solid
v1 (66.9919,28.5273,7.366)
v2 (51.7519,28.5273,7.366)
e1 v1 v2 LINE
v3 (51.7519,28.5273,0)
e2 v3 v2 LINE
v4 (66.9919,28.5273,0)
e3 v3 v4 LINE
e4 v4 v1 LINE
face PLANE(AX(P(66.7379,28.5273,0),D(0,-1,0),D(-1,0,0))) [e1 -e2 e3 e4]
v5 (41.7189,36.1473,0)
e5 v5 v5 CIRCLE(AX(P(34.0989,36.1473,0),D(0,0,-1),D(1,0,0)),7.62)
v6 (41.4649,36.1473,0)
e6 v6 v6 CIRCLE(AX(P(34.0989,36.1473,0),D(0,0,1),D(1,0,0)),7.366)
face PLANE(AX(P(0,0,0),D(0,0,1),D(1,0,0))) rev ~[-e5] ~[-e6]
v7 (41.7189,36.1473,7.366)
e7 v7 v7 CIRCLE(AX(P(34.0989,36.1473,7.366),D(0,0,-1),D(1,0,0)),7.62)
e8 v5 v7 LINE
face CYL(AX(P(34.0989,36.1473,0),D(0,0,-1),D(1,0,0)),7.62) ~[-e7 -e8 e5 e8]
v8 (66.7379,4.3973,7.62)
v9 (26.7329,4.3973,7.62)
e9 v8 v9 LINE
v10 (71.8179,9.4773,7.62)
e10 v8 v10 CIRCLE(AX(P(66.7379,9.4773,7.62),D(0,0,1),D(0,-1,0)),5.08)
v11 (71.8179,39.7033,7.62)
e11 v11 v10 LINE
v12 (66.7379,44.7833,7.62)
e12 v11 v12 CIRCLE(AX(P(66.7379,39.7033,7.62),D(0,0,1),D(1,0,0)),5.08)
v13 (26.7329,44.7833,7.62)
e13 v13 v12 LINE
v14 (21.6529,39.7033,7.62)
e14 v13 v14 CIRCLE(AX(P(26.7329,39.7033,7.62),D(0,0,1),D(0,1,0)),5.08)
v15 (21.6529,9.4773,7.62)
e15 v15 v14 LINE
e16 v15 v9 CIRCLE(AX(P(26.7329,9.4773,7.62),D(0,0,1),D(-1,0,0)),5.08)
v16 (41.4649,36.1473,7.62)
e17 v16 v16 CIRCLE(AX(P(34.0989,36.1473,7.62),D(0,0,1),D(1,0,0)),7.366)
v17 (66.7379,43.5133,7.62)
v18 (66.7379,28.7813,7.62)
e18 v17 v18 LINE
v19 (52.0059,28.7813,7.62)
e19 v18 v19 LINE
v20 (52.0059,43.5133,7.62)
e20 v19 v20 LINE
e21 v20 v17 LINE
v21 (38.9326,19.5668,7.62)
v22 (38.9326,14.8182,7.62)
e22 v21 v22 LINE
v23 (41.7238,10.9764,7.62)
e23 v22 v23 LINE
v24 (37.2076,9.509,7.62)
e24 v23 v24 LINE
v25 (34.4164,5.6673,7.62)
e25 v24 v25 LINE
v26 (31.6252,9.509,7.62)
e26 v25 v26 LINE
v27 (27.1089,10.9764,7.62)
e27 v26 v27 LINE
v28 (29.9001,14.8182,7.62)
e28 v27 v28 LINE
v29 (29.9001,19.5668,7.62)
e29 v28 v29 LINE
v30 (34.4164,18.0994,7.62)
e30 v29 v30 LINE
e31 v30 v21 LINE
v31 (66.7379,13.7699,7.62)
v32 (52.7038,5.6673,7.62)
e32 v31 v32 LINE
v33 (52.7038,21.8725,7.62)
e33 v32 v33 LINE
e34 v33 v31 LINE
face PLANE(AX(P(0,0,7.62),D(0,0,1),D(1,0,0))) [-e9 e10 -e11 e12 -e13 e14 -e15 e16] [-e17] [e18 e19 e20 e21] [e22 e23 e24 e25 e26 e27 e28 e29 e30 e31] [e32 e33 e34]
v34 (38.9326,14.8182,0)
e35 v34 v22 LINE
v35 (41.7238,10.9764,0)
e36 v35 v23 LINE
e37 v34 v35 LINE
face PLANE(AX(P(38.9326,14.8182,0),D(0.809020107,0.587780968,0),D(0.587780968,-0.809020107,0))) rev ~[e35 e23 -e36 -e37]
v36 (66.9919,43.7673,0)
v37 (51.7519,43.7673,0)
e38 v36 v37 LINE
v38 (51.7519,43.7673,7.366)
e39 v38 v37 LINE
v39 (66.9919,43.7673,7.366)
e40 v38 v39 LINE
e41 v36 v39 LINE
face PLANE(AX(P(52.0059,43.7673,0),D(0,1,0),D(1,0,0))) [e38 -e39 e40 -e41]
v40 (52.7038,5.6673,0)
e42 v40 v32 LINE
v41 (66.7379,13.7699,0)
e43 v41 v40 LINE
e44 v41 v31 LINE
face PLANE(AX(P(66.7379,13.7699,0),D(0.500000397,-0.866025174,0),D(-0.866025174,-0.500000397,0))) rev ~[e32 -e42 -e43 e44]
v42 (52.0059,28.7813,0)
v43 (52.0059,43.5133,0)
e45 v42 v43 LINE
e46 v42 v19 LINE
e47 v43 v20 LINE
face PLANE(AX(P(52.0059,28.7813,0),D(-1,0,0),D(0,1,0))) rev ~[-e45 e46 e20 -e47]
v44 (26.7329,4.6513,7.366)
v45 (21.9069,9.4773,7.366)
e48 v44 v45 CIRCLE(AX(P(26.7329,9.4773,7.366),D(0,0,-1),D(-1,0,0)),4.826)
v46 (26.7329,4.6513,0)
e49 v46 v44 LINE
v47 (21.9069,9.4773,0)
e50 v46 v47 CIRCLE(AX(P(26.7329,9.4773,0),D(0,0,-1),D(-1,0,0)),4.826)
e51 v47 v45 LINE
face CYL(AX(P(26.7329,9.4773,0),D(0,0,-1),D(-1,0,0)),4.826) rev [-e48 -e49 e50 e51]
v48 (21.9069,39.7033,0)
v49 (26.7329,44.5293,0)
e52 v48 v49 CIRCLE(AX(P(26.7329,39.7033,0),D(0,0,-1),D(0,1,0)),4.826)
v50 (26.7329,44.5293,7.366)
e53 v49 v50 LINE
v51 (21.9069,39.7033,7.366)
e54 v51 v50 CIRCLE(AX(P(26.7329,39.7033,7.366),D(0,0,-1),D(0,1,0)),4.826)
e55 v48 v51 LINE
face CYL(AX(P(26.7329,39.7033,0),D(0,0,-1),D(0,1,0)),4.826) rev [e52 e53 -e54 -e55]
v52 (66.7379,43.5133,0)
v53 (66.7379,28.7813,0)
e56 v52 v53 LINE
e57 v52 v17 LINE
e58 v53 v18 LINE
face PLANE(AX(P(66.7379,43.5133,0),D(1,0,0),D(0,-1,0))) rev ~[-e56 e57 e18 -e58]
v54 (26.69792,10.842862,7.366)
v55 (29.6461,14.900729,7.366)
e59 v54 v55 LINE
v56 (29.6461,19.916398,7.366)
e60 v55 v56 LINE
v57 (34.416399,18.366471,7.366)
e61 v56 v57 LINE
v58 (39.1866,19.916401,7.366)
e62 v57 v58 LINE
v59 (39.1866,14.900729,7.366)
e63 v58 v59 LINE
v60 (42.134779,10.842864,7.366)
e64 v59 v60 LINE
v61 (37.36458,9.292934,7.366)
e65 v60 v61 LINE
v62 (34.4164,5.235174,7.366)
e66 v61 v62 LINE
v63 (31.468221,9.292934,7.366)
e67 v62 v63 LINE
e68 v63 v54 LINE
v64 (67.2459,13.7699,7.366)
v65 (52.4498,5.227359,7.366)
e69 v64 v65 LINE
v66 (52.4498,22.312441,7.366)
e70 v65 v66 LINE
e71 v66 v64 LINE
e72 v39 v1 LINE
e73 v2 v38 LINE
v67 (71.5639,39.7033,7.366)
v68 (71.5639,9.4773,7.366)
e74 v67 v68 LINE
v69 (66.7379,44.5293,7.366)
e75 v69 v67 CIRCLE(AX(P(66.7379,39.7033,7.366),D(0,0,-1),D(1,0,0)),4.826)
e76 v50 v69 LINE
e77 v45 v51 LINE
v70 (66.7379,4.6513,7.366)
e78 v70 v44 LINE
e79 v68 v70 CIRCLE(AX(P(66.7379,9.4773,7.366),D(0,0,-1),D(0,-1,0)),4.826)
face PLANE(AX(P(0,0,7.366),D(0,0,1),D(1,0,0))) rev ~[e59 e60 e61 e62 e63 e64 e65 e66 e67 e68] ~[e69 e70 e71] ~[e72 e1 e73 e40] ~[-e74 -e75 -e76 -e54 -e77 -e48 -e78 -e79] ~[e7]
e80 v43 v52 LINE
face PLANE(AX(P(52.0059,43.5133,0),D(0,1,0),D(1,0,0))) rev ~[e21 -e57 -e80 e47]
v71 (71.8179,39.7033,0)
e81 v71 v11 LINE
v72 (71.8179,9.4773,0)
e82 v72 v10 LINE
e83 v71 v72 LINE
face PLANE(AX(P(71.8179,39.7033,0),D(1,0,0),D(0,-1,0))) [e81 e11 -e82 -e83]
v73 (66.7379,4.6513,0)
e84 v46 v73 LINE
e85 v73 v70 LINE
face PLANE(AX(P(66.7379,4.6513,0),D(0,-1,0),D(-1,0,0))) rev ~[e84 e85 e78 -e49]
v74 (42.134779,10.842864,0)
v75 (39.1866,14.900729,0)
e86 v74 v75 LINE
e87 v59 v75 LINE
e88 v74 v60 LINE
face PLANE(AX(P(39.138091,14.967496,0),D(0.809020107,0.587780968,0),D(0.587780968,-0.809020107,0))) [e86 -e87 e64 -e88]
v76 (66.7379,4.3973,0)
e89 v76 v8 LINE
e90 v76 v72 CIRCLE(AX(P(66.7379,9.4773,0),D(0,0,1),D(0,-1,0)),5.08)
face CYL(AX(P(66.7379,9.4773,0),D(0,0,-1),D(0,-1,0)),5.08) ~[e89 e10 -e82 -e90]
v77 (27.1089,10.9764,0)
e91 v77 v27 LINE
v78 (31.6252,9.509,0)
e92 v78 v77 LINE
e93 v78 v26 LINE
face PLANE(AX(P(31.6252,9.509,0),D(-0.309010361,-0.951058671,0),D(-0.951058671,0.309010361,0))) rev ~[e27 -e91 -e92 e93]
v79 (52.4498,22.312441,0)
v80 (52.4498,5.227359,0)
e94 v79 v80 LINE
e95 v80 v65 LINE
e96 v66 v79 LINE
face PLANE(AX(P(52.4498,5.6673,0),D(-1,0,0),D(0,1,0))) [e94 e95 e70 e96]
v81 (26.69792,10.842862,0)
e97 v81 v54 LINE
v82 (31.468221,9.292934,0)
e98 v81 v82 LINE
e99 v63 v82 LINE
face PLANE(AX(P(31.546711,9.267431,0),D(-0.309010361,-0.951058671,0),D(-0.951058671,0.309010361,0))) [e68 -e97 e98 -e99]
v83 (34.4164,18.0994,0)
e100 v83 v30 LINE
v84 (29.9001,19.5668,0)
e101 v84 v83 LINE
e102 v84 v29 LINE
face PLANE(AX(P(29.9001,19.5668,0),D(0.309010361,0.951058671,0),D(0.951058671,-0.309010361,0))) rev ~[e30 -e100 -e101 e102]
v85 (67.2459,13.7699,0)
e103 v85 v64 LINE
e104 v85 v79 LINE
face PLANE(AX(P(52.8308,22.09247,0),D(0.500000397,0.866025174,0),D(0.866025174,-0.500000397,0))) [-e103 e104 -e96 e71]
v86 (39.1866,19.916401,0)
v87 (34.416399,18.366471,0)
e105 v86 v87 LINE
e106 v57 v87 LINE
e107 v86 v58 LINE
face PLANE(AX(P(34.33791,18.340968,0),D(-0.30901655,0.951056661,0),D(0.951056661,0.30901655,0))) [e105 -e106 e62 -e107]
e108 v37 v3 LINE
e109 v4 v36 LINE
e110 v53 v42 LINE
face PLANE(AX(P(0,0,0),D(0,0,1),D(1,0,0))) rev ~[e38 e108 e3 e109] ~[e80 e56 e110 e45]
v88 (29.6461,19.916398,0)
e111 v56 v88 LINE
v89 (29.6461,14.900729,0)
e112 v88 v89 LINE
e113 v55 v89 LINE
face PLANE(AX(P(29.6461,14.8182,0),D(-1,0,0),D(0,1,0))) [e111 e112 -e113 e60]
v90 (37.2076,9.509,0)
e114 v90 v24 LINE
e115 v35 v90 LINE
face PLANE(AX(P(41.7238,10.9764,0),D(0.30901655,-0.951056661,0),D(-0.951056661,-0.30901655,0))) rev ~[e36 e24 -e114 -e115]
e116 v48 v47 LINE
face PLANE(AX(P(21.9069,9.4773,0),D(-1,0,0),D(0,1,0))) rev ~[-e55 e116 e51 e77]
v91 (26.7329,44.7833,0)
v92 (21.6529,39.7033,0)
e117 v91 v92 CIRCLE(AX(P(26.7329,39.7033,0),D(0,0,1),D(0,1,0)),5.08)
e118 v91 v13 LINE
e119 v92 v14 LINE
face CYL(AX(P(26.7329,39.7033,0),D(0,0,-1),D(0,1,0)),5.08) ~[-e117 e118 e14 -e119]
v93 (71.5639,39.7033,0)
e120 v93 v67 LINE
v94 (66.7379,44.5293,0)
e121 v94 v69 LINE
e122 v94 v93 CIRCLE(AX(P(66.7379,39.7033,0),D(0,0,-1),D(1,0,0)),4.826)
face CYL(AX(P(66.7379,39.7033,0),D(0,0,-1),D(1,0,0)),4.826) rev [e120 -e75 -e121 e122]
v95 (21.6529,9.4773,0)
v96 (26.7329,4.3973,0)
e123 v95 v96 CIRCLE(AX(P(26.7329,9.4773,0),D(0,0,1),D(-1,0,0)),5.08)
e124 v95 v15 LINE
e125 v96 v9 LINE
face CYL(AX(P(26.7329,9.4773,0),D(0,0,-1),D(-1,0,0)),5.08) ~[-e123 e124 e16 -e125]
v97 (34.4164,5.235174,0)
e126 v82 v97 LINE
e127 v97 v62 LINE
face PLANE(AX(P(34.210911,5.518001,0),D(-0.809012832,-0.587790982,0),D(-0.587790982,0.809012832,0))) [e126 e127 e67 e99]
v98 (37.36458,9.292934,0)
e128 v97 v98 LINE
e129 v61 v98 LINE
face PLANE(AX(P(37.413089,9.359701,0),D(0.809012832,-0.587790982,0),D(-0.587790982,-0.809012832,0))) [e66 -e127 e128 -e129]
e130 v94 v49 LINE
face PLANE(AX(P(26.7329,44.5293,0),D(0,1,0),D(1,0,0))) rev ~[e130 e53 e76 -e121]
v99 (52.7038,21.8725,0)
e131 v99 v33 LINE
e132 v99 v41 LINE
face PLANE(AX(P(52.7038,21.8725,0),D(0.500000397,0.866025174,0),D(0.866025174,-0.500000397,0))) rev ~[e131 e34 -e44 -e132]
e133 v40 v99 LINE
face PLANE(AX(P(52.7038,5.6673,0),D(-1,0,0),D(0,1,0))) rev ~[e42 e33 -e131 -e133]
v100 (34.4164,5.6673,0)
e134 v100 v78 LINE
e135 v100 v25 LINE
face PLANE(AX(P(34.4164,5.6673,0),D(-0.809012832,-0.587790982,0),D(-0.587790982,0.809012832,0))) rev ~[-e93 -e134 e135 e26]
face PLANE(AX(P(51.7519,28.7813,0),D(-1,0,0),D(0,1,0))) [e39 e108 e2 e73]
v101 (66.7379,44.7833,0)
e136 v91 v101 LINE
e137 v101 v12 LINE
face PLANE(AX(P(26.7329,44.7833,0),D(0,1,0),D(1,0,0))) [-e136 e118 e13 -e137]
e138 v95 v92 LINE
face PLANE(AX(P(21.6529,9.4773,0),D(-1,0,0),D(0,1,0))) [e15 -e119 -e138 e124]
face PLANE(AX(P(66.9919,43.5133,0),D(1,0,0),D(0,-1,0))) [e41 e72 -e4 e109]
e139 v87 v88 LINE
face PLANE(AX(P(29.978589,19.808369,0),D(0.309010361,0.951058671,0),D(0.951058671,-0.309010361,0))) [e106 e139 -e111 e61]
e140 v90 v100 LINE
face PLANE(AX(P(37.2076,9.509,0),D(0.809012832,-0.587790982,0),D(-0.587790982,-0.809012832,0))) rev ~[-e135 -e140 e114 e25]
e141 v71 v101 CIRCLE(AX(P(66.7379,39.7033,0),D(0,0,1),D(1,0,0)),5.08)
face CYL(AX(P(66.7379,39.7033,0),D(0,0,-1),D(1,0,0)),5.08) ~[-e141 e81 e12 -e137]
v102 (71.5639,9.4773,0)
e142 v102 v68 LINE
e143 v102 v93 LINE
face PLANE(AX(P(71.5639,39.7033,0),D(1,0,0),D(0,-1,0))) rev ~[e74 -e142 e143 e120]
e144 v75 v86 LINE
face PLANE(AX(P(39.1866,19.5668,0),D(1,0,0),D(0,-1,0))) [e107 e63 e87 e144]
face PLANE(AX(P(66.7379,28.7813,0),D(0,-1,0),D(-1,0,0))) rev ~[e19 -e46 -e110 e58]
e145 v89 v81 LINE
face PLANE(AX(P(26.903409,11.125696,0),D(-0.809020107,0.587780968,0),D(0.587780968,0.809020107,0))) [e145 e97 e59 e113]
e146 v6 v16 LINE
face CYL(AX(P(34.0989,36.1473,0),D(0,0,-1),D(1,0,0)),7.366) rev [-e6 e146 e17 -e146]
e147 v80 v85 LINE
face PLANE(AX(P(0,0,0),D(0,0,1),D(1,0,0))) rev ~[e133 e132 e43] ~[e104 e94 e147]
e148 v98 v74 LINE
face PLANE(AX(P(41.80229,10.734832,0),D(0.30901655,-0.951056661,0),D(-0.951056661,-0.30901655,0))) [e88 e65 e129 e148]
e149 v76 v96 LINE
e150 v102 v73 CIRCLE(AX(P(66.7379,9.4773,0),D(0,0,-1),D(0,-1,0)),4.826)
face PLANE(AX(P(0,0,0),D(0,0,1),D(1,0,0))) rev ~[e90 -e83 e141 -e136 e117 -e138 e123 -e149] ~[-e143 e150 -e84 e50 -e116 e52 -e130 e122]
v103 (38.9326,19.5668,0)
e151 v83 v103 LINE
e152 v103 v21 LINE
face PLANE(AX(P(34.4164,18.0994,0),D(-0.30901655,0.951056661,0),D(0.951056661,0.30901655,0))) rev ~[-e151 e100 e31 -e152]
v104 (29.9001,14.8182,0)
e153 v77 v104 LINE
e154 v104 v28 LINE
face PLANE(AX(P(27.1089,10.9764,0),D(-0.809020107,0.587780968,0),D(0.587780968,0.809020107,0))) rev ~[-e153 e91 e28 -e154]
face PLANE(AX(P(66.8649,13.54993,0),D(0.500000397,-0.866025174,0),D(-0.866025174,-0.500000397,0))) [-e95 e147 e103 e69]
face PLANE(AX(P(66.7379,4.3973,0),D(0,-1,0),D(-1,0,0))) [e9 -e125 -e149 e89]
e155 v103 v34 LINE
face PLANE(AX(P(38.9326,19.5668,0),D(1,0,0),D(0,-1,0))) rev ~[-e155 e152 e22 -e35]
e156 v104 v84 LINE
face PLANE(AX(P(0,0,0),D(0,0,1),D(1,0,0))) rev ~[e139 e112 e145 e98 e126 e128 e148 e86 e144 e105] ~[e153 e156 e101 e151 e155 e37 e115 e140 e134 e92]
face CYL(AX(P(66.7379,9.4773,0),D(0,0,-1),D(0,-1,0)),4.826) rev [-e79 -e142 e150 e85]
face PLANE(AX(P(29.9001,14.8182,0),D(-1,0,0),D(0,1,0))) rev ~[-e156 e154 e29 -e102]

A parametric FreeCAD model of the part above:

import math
import FreeCAD as App
import Part
import Sketcher
Q = App.Units.Quantity


def faces_at(feature, points):
    """Names of the faces that lie closest to the given points."""
    faces = feature.Shape.Faces
    near = lambda p: min(range(len(faces)), key=lambda i: faces[i].distToShape(Part.Vertex(*p))[0])
    return sorted({f"Face{near(p) + 1}" for p in points})

doc = App.newDocument("Part")
params = doc.addObject("Spreadsheet::Sheet", "Params")
for row, (alias, value) in enumerate([
    ("sketch1_radius", "0.2 in"),
    ("sketch1_diameter", "0.58 in"),
    ("sketch1_width", "0.58 in"),
    ("sketch1_height", "0.638 in"),
    ("sketch1_length", "0.638 in"),
    ("pad1_length", "0.3 in"),
    ("thickness_wall", "0.01 in"),
], start=1):
    params.set(f"A{row}", alias)
    params.set(f"B{row}", "=" + value)
    params.setAlias(f"B{row}", alias)

body = doc.addObject("PartDesign::Body", "Body")

# Sketch on XY plane
sketch1 = body.newObject("Sketcher::SketchObject", "Sketch")
sketch1.AttachmentSupport = (doc.getObject("XY_Plane"), [""])
sketch1.MapMode = "FlatFace"
sketch1.addGeometry(Part.LineSegment(App.Vector(66.7, 44.8, 0), App.Vector(26.7, 44.8, 0)), False)
sketch1.addGeometry(Part.ArcOfCircle(Part.Circle(App.Vector(26.7, 39.7, 0), App.Vector(0, 0, 1), 5.1), math.radians(90), math.radians(180)), False)
sketch1.addGeometry(Part.LineSegment(App.Vector(21.7, 39.7, 0), App.Vector(21.7, 9.5, 0)), False)
sketch1.addGeometry(Part.ArcOfCircle(Part.Circle(App.Vector(26.7, 9.5, 0), App.Vector(0, 0, 1), 5.1), math.radians(180), math.radians(270)), False)
sketch1.addGeometry(Part.LineSegment(App.Vector(26.7, 4.4, 0), App.Vector(66.7, 4.4, 0)), False)
sketch1.addGeometry(Part.ArcOfCircle(Part.Circle(App.Vector(66.7, 9.5, 0), App.Vector(0, 0, 1), 5.1), math.radians(-90), math.radians(0)), False)
sketch1.addGeometry(Part.LineSegment(App.Vector(71.8, 9.5, 0), App.Vector(71.8, 39.7, 0)), False)
sketch1.addGeometry(Part.ArcOfCircle(Part.Circle(App.Vector(66.7, 39.7, 0), App.Vector(0, 0, 1), 5.1), math.radians(0), math.radians(90)), False)
sketch1.addGeometry(Part.LineSegment(App.Vector(29.9, 14.8, 0), App.Vector(29.9, 19.6, 0)), False)
sketch1.addGeometry(Part.LineSegment(App.Vector(29.9, 19.6, 0), App.Vector(34.4, 18.1, 0)), False)
sketch1.addGeometry(Part.LineSegment(App.Vector(34.4, 18.1, 0), App.Vector(38.9, 19.6, 0)), False)
sketch1.addGeometry(Part.LineSegment(App.Vector(38.9, 19.6, 0), App.Vector(38.9, 14.8, 0)), False)
sketch1.addGeometry(Part.LineSegment(App.Vector(38.9, 14.8, 0), App.Vector(41.7, 11, 0)), False)
sketch1.addGeometry(Part.LineSegment(App.Vector(41.7, 11, 0), App.Vector(37.2, 9.5, 0)), False)
sketch1.addGeometry(Part.LineSegment(App.Vector(37.2, 9.5, 0), App.Vector(34.4, 5.7, 0)), False)
sketch1.addGeometry(Part.LineSegment(App.Vector(34.4, 5.7, 0), App.Vector(31.6, 9.5, 0)), False)
sketch1.addGeometry(Part.LineSegment(App.Vector(31.6, 9.5, 0), App.Vector(27.1, 11, 0)), False)
sketch1.addGeometry(Part.LineSegment(App.Vector(27.1, 11, 0), App.Vector(29.9, 14.8, 0)), False)
sketch1.addGeometry(Part.LineSegment(App.Vector(52.7, 5.7, 0), App.Vector(52.7, 21.9, 0)), False)
sketch1.addGeometry(Part.LineSegment(App.Vector(52.7, 21.9, 0), App.Vector(66.7, 13.8, 0)), False)
sketch1.addGeometry(Part.LineSegment(App.Vector(66.7, 13.8, 0), App.Vector(52.7, 5.7, 0)), False)
sketch1.addGeometry(Part.Circle(App.Vector(34.1, 36.1, 0), App.Vector(0, 0, 1), 7.4), False)
sketch1.addGeometry(Part.LineSegment(App.Vector(52, 28.8, 0), App.Vector(52, 43.5, 0)), False)
sketch1.addGeometry(Part.LineSegment(App.Vector(52, 43.5, 0), App.Vector(66.7, 43.5, 0)), False)
sketch1.addGeometry(Part.LineSegment(App.Vector(66.7, 43.5, 0), App.Vector(66.7, 28.8, 0)), False)
sketch1.addGeometry(Part.LineSegment(App.Vector(66.7, 28.8, 0), App.Vector(52, 28.8, 0)), False)
sketch1.addConstraint(Sketcher.Constraint("Tangent", 0, 2, 1, 1))
sketch1.addConstraint(Sketcher.Constraint("Tangent", 1, 2, 2, 1))
sketch1.addConstraint(Sketcher.Constraint("Tangent", 2, 2, 3, 1))
sketch1.addConstraint(Sketcher.Constraint("Tangent", 3, 2, 4, 1))
sketch1.addConstraint(Sketcher.Constraint("Tangent", 4, 2, 5, 1))
sketch1.addConstraint(Sketcher.Constraint("Tangent", 5, 2, 6, 1))
sketch1.addConstraint(Sketcher.Constraint("Tangent", 6, 2, 7, 1))
sketch1.addConstraint(Sketcher.Constraint("Tangent", 7, 2, 0, 1))
sketch1.addConstraint(Sketcher.Constraint("Coincident", 8, 2, 9, 1))
sketch1.addConstraint(Sketcher.Constraint("Coincident", 9, 2, 10, 1))
sketch1.addConstraint(Sketcher.Constraint("Coincident", 10, 2, 11, 1))
sketch1.addConstraint(Sketcher.Constraint("Coincident", 11, 2, 12, 1))
sketch1.addConstraint(Sketcher.Constraint("Coincident", 12, 2, 13, 1))
sketch1.addConstraint(Sketcher.Constraint("Coincident", 13, 2, 14, 1))
sketch1.addConstraint(Sketcher.Constraint("Coincident", 14, 2, 15, 1))
sketch1.addConstraint(Sketcher.Constraint("Coincident", 15, 2, 16, 1))
sketch1.addConstraint(Sketcher.Constraint("Coincident", 16, 2, 17, 1))
sketch1.addConstraint(Sketcher.Constraint("Coincident", 17, 2, 8, 1))
sketch1.addConstraint(Sketcher.Constraint("Coincident", 18, 2, 19, 1))
sketch1.addConstraint(Sketcher.Constraint("Coincident", 19, 2, 20, 1))
sketch1.addConstraint(Sketcher.Constraint("Coincident", 20, 2, 18, 1))
sketch1.addConstraint(Sketcher.Constraint("Coincident", 22, 2, 23, 1))
sketch1.addConstraint(Sketcher.Constraint("Coincident", 23, 2, 24, 1))
sketch1.addConstraint(Sketcher.Constraint("Coincident", 24, 2, 25, 1))
sketch1.addConstraint(Sketcher.Constraint("Coincident", 25, 2, 22, 1))
sketch1.addConstraint(Sketcher.Constraint("Horizontal", 0))
sketch1.addConstraint(Sketcher.Constraint("Vertical", 2))
sketch1.addConstraint(Sketcher.Constraint("Horizontal", 4))
sketch1.addConstraint(Sketcher.Constraint("Vertical", 6))
sketch1.addConstraint(Sketcher.Constraint("Vertical", 8))
sketch1.addConstraint(Sketcher.Constraint("Vertical", 11))
sketch1.addConstraint(Sketcher.Constraint("Vertical", 18))
sketch1.addConstraint(Sketcher.Constraint("Vertical", 22))
sketch1.addConstraint(Sketcher.Constraint("Horizontal", 23))
sketch1.addConstraint(Sketcher.Constraint("Vertical", 24))
sketch1.addConstraint(Sketcher.Constraint("Horizontal", 25))
sketch1.addConstraint(Sketcher.Constraint("Equal", 1, 3))
sketch1.addConstraint(Sketcher.Constraint("Equal", 3, 5))
sketch1.addConstraint(Sketcher.Constraint("Equal", 5, 7))
sketch1.addConstraint(Sketcher.Constraint("Parallel", 10, 13))
sketch1.addConstraint(Sketcher.Constraint("Parallel", 12, 15))
sketch1.addConstraint(Sketcher.Constraint("Parallel", 9, 16))
sketch1.addConstraint(Sketcher.Constraint("Parallel", 14, 17))
sketch1.addConstraint(Sketcher.Constraint("Horizontal", 8, 2, 10, 2))
sketch1.addConstraint(Sketcher.Constraint("Horizontal", 13, 2, 15, 2))
sketch1.addConstraint(Sketcher.Constraint("Horizontal", 12, 2, 16, 2))
sketch1.addConstraint(Sketcher.Constraint("Horizontal", 11, 2, 17, 2))
sketch1.addConstraint(Sketcher.Constraint("Horizontal", 14, 2, 20, 2))
sketch1.addConstraint(Sketcher.Constraint("Vertical", 9, 2, 14, 2))
sketch1.addConstraint(Sketcher.Constraint("Vertical", 7, 2, 19, 2))
sketch1.addConstraint(Sketcher.Constraint("Vertical", 19, 2, 23, 2))
sketch1.addConstraint(Sketcher.Constraint("Equal", 25, 22))
sketch1.addConstraint(Sketcher.Constraint("Equal", 9, 10))
sketch1.addConstraint(Sketcher.Constraint("Equal", 10, 12))
sketch1.addConstraint(Sketcher.Constraint("Equal", 12, 13))
sketch1.addConstraint(Sketcher.Constraint("Equal", 19, 20))
sketch1.addConstraint(Sketcher.Constraint("Radius", 1, Q("0.2 in")))
sketch1.addConstraint(Sketcher.Constraint("Diameter", 21, Q("0.58 in")))
sketch1.addConstraint(Sketcher.Constraint("DistanceX", 23, 1, 23, 2, Q("0.58 in")))
sketch1.addConstraint(Sketcher.Constraint("DistanceY", 18, 1, 18, 2, Q("0.638 in")))
sketch1.addConstraint(Sketcher.Constraint("DistanceY", 21, 3, 0, 2, Q("0.34 in")))
sketch1.addConstraint(Sketcher.Constraint("DistanceX", 1, 2, 21, 3, Q("0.49 in")))
sketch1.addConstraint(Sketcher.Constraint("DistanceY", 3, 2, 14, 2, Q("0.05 in")))
sketch1.addConstraint(Sketcher.Constraint("DistanceY", 22, 2, 7, 2, Q("0.05 in")))
sketch1.addConstraint(Sketcher.Constraint("Distance", 19, Q("0.638 in")))
sketch1.addConstraint(Sketcher.Constraint("Angle", 9, Q("-17.9996 deg")))
sketch1.addConstraint(Sketcher.Constraint("Angle", 12, Q("-54.0003 deg")))
sketch1.addConstraint(Sketcher.Constraint("DistanceY", 2, 2, 2, 1, Q("1.19 in")))
sketch1.addConstraint(Sketcher.Constraint("DistanceX", 0, 2, 0, 1, Q("1.575 in")))
sketch1.addConstraint(Sketcher.Constraint("DistanceY", 8, 1, 8, 2, 4.7486))
sketch1.addConstraint(Sketcher.Constraint("DistanceY", -1, 1, 11, 2, Q("0.5834 in")))
sketch1.addConstraint(Sketcher.Constraint("DistanceX", 3, 3, 8, 2, Q("0.1247 in")))
sketch1.addConstraint(Sketcher.Constraint("DistanceX", 8, 2, 9, 2, Q("0.1778 in")))
sketch1.addConstraint(Sketcher.Constraint("DistanceX", -1, 1, 1, 3, 26.733))
sketch1.setExpression("Constraints[56]", "Params.sketch1_radius")
sketch1.setExpression("Constraints[57]", "Params.sketch1_diameter")
sketch1.setExpression("Constraints[58]", "Params.sketch1_width")
sketch1.setExpression("Constraints[59]", "Params.sketch1_height")
sketch1.setExpression("Constraints[64]", "Params.sketch1_length")
pad1 = body.newObject("PartDesign::Pad", "Pad")
pad1.Profile = sketch1
pad1.setExpression("Length", "Params.pad1_length")
doc.recompute()

thickness = body.newObject("PartDesign::Thickness", "Thickness")
thickness.Base = (pad1, faces_at(pad1, [(62.06, 21.474, 0)]))
thickness.setExpression("Value", "Params.thickness_wall")
thickness.Reversed = True
thickness.Join = "Intersection"

doc.recompute()
